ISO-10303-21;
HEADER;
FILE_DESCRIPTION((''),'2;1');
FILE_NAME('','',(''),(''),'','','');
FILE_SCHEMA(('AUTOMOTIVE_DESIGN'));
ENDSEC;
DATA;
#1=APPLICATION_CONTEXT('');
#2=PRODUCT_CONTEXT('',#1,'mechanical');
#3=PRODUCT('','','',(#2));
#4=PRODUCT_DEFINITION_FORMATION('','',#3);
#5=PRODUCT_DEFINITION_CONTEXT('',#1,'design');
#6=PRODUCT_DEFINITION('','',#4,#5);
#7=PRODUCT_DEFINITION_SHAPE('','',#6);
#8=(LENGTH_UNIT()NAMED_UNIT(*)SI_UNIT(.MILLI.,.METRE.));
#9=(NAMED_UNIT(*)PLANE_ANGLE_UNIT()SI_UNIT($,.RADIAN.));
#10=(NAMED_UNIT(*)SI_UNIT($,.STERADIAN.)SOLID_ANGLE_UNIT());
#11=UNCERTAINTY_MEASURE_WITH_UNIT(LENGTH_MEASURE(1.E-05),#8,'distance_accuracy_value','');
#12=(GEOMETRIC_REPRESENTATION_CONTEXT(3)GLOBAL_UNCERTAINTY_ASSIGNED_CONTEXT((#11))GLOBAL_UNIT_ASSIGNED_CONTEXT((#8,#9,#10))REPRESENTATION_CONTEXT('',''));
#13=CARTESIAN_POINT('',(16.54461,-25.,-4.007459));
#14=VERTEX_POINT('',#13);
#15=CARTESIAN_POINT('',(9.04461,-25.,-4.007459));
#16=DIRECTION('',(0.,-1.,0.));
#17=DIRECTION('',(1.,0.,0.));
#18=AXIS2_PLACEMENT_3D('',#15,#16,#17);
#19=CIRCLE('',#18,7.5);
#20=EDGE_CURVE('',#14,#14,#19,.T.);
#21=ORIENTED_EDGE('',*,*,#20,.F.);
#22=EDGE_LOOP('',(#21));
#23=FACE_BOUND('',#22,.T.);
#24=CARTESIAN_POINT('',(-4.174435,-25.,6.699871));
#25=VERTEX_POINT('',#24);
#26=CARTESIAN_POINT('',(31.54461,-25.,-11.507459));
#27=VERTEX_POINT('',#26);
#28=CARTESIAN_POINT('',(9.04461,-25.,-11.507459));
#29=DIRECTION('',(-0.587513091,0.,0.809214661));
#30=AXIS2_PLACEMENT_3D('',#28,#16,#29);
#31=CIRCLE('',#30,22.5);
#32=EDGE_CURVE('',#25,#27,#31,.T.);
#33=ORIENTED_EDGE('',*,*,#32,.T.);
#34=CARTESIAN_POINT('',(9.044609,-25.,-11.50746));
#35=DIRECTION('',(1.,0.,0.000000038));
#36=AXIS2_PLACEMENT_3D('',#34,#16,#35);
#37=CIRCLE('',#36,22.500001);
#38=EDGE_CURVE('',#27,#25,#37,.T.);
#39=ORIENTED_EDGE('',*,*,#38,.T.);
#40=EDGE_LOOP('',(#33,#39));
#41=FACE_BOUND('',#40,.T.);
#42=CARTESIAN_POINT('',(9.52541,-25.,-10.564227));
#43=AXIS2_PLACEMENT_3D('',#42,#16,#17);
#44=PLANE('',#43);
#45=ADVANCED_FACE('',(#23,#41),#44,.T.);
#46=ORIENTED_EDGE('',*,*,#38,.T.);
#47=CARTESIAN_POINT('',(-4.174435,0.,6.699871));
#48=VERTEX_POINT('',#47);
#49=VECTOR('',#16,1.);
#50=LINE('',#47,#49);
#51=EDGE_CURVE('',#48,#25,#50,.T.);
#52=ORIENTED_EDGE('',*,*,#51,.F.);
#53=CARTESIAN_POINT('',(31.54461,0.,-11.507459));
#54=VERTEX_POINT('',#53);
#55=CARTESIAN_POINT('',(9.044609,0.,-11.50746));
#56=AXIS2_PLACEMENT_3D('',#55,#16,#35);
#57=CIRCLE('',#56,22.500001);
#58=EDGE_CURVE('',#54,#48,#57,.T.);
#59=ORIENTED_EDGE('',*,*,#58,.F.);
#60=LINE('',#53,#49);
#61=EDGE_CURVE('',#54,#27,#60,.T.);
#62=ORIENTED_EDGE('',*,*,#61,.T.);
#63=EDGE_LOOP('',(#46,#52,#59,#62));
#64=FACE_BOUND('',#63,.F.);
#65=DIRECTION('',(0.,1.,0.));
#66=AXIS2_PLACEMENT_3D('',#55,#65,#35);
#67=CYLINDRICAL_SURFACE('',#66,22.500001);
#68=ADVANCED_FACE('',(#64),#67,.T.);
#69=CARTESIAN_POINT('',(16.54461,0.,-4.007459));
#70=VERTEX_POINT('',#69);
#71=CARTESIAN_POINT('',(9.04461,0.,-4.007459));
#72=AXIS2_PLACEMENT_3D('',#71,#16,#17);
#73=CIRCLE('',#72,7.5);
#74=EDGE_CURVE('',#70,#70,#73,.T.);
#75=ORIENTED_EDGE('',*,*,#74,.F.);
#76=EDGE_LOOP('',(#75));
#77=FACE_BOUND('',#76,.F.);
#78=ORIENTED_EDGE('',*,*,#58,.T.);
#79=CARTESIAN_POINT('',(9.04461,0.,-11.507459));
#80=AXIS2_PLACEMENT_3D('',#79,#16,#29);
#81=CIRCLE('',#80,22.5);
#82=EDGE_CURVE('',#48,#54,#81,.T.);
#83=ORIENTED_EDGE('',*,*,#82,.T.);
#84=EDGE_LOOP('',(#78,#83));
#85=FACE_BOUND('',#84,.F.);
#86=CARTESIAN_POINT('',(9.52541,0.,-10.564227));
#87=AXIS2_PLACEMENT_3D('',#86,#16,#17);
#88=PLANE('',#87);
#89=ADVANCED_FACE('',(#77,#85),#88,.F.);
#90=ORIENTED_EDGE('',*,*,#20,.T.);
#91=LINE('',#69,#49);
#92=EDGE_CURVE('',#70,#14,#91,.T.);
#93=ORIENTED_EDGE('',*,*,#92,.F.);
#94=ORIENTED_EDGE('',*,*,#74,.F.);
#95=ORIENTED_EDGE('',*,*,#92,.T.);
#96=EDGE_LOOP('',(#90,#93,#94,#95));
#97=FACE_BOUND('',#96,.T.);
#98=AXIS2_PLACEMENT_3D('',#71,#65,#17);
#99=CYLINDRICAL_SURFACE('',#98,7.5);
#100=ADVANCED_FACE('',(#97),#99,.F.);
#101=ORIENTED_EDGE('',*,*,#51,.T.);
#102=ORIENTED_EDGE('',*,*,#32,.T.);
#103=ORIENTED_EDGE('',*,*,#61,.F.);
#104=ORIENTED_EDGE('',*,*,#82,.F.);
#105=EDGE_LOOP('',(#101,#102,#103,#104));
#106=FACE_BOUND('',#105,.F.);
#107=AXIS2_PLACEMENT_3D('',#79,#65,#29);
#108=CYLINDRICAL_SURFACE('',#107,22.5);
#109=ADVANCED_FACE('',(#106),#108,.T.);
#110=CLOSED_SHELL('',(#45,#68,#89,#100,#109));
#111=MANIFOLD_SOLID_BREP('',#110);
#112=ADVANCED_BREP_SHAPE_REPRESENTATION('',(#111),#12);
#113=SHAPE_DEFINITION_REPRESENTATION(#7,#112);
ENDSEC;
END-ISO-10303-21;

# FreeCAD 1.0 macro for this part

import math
import FreeCAD as App
import Part
import Sketcher

V = App.Vector

doc = App.newDocument("Part")
params = doc.addObject("Spreadsheet::Sheet", "Params")
for row, (alias, value) in enumerate([
    ("sketch1_diameter", "15 mm"),
    ("sketch1_radius", "22.5 mm"),
    ("pad1_length", "25 mm"),
], start=1):
    params.set(f"A{row}", alias)
    params.set(f"B{row}", "=" + value)
    params.setAlias(f"B{row}", alias)

body = doc.addObject("PartDesign::Body", "Body")

# Sketch on XZ plane
sketch1 = doc.addObject("Sketcher::SketchObject", "Sketch")
body.addObject(sketch1)
sketch1.AttachmentSupport = (doc.XZ_Plane, [""])
sketch1.MapMode = "FlatFace"
sketch1.addGeometry([
    Part.ArcOfCircle(Part.Circle(V(9, -12, 0), V(0, 0, 1), 23), math.radians(126), math.radians(360)),
    Part.ArcOfCircle(Part.Circle(V(9, -12, 0), V(0, 0, 1), 23), math.radians(0), math.radians(126)),
    Part.Circle(V(9, -4, 0), V(0, 0, 1), 8),
], False)
sketch1.addConstraint([
    Sketcher.Constraint("Tangent", 0, 1, 1, 2),
    Sketcher.Constraint("Coincident", 1, 1, 0, 2),
    Sketcher.Constraint("Horizontal", 0, 3, 1, 1),
    Sketcher.Constraint("Vertical", 1, 3, 2, 3),
    Sketcher.Constraint("Diameter", 2, 15.0),
    Sketcher.Constraint("Radius", 0, 22.5),
    Sketcher.Constraint("DistanceY", 0, 3, 2, 3, 7.5),
    Sketcher.Constraint("DistanceX", -1, 1, 0, 3, 9.04461),
    Sketcher.Constraint("DistanceY", 0, 3, -1, 1, 11.507459),
    Sketcher.Constraint("DistanceY", -1, 1, 0, 1, 6.699871),
])
sketch1.setExpression("Constraints[4]", "Params.sketch1_diameter")
sketch1.setExpression("Constraints[5]", "Params.sketch1_radius")
pad1 = doc.addObject("PartDesign::Pad", "Pad")
body.addObject(pad1)
pad1.Profile = sketch1
pad1.setExpression("Length", "Params.pad1_length")

doc.recompute()
